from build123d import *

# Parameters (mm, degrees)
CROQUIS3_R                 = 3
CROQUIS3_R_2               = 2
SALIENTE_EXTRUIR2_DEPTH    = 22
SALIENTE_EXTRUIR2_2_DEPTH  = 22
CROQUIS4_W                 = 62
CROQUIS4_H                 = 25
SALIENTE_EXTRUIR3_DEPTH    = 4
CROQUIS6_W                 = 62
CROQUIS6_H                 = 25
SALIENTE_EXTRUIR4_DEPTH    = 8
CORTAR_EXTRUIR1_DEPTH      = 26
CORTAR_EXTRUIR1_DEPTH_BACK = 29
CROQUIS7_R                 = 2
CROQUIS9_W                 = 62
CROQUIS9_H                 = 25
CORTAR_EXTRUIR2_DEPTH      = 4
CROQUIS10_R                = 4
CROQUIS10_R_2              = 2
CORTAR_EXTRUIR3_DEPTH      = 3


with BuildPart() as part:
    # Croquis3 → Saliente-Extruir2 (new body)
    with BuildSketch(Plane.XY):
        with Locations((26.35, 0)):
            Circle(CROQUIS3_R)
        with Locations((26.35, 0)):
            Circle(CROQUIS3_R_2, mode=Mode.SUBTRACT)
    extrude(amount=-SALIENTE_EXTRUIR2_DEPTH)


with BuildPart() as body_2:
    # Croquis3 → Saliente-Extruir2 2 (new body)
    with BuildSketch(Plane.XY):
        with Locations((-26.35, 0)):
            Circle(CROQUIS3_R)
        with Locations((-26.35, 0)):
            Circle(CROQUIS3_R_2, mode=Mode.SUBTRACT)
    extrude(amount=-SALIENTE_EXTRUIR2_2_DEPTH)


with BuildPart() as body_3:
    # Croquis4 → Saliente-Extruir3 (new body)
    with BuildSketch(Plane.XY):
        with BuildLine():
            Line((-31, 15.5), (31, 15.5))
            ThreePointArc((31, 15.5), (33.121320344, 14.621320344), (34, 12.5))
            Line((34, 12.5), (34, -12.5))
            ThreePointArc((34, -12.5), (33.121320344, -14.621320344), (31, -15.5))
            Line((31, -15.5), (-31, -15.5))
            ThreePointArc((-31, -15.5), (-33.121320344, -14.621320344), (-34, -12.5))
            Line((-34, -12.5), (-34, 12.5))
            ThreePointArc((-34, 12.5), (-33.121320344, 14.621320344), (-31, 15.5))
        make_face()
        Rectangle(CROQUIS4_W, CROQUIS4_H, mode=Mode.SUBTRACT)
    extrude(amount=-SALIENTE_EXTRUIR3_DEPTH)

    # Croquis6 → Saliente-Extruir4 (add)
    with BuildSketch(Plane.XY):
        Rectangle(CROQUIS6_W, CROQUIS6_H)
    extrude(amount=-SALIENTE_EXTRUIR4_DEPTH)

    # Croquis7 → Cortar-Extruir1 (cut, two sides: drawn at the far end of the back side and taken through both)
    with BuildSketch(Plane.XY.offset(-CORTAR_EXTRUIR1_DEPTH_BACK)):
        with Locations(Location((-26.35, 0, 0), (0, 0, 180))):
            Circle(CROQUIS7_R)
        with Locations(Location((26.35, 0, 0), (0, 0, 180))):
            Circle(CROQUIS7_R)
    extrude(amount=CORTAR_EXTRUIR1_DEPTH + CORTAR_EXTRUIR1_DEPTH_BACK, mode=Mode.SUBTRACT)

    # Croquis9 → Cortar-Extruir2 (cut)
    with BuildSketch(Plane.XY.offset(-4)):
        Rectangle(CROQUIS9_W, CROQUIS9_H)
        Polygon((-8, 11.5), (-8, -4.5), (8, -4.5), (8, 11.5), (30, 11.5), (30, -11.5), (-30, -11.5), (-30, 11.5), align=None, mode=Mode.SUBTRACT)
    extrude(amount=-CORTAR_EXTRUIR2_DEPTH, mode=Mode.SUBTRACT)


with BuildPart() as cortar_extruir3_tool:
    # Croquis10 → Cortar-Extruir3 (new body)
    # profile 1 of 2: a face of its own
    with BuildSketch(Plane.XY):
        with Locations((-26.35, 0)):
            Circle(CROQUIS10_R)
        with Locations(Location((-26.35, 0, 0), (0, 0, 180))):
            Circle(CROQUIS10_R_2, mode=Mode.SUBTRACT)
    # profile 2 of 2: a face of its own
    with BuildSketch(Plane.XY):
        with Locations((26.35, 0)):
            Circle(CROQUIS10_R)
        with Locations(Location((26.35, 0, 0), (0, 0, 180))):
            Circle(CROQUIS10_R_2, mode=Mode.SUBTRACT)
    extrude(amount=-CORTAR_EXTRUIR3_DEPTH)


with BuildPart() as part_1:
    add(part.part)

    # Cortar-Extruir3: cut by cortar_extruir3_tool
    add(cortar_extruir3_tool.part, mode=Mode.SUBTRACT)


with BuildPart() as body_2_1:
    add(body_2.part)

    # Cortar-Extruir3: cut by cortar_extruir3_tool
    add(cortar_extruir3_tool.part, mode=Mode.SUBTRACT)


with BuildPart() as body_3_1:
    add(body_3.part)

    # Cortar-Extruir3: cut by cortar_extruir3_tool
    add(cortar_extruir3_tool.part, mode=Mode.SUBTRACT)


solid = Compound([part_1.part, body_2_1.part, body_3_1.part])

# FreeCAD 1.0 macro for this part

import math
import FreeCAD as App
import Part
import Sketcher

V = App.Vector

doc = App.newDocument("Part")
body = doc.addObject("PartDesign::Body", "Body")

sketch1 = body.newObject("Sketcher::SketchObject", "Sketch")
sketch1.AttachmentSupport = (doc.getObject("XY_Plane"), [""])
sketch1.MapMode = "FlatFace"
sketch1.addGeometry([
    Part.Circle(V(26.4, 0, 0), V(0, 0, 1), 3),
    Part.Circle(V(26.4, 0, 0), V(0, 0, 1), 2),
], False)
sketch1.addConstraint([
    Sketcher.Constraint("Coincident", 1, 3, 0, 3),
    Sketcher.Constraint("PointOnObject", 0, 3, -1),
    Sketcher.Constraint("Diameter", 0, 6.0),
    Sketcher.Constraint("Diameter", 1, 4.0),
    Sketcher.Constraint("DistanceX", -1, 1, 0, 3, 26.35),
])
pad1 = body.newObject("PartDesign::Pad", "Pad")
pad1.Profile = sketch1
pad1.Length = 22
pad1.Reversed = True
body2 = doc.addObject("PartDesign::Body", "Body001")

sketch2 = body2.newObject("Sketcher::SketchObject", "Sketch001")
sketch2.AttachmentSupport = (doc.getObject("XY_Plane001"), [""])
sketch2.MapMode = "FlatFace"
sketch2.addGeometry([
    Part.Circle(V(-26.4, 0, 0), V(0, 0, 1), 3),
    Part.Circle(V(-26.4, 0, 0), V(0, 0, 1), 2),
], False)
sketch2.addConstraint([
    Sketcher.Constraint("Coincident", 1, 3, 0, 3),
    Sketcher.Constraint("PointOnObject", 0, 3, -1),
    Sketcher.Constraint("Diameter", 0, 6.0),
    Sketcher.Constraint("Diameter", 1, 4.0),
    Sketcher.Constraint("DistanceX", 0, 3, -1, 1, 26.35),
])
pad2 = body2.newObject("PartDesign::Pad", "Pad001")
pad2.Profile = sketch2
pad2.Length = 22
pad2.Reversed = True
body3 = doc.addObject("PartDesign::Body", "Body002")

sketch3 = body3.newObject("Sketcher::SketchObject", "Sketch002")
sketch3.AttachmentSupport = (doc.getObject("XY_Plane002"), [""])
sketch3.MapMode = "FlatFace"
sketch3.addGeometry([
    Part.LineSegment(V(31, 15.5, 0), V(-31, 15.5, 0)),
    Part.ArcOfCircle(Part.Circle(V(-31, 12.5, 0), V(0, 0, 1), 3), math.radians(90), math.radians(180)),
    Part.LineSegment(V(-34, 12.5, 0), V(-34, -12.5, 0)),
    Part.ArcOfCircle(Part.Circle(V(-31, -12.5, 0), V(0, 0, 1), 3), math.radians(180), math.radians(270)),
    Part.LineSegment(V(-31, -15.5, 0), V(31, -15.5, 0)),
    Part.ArcOfCircle(Part.Circle(V(31, -12.5, 0), V(0, 0, 1), 3), math.radians(-90), math.radians(0)),
    Part.LineSegment(V(34, -12.5, 0), V(34, 12.5, 0)),
    Part.ArcOfCircle(Part.Circle(V(31, 12.5, 0), V(0, 0, 1), 3), math.radians(0), math.radians(90)),
    Part.LineSegment(V(-31, -12.5, 0), V(-31, 12.5, 0)),
    Part.LineSegment(V(-31, 12.5, 0), V(31, 12.5, 0)),
    Part.LineSegment(V(31, 12.5, 0), V(31, -12.5, 0)),
    Part.LineSegment(V(31, -12.5, 0), V(-31, -12.5, 0)),
], False)
sketch3.addConstraint([
    Sketcher.Constraint("Tangent", 0, 2, 1, 1),
    Sketcher.Constraint("Tangent", 1, 2, 2, 1),
    Sketcher.Constraint("Tangent", 2, 2, 3, 1),
    Sketcher.Constraint("Tangent", 3, 2, 4, 1),
    Sketcher.Constraint("Tangent", 4, 2, 5, 1),
    Sketcher.Constraint("Tangent", 5, 2, 6, 1),
    Sketcher.Constraint("Tangent", 6, 2, 7, 1),
    Sketcher.Constraint("Tangent", 7, 2, 0, 1),
    Sketcher.Constraint("Coincident", 8, 2, 9, 1),
    Sketcher.Constraint("Coincident", 9, 2, 10, 1),
    Sketcher.Constraint("Coincident", 10, 2, 11, 1),
    Sketcher.Constraint("Coincident", 11, 2, 8, 1),
    Sketcher.Constraint("Horizontal", 0),
    Sketcher.Constraint("Vertical", 2),
    Sketcher.Constraint("Horizontal", 4),
    Sketcher.Constraint("Vertical", 6),
    Sketcher.Constraint("Vertical", 8),
    Sketcher.Constraint("Horizontal", 9),
    Sketcher.Constraint("Vertical", 10),
    Sketcher.Constraint("Horizontal", 11),
    Sketcher.Constraint("Coincident", 8, 2, 1, 3),
    Sketcher.Constraint("Coincident", 9, 2, 7, 3),
    Sketcher.Constraint("Coincident", 10, 2, 5, 3),
    Sketcher.Constraint("Equal", 1, 3),
    Sketcher.Constraint("Symmetric", 1, 3, 5, 3, -1, 1),
    Sketcher.Constraint("Radius", 1, 3.0),
    Sketcher.Constraint("DistanceX", 0, 2, 0, 1, 62.0),
    Sketcher.Constraint("DistanceY", 2, 2, 2, 1, 25.0),
])
pad3 = body3.newObject("PartDesign::Pad", "Pad002")
pad3.Profile = sketch3
pad3.Length = 4
pad3.Reversed = True

sketch4 = body3.newObject("Sketcher::SketchObject", "Sketch003")
sketch4.AttachmentSupport = (doc.getObject("XY_Plane002"), [""])
sketch4.MapMode = "FlatFace"
sketch4.addGeometry([
    Part.LineSegment(V(-31, 12, 0), V(-31, -12, 0)),
    Part.LineSegment(V(-31, -12, 0), V(31, -12, 0)),
    Part.LineSegment(V(31, -12, 0), V(31, 12, 0)),
    Part.LineSegment(V(31, 12, 0), V(-31, 12, 0)),
], False)
sketch4.addConstraint([
    Sketcher.Constraint("Coincident", 0, 2, 1, 1),
    Sketcher.Constraint("Coincident", 1, 2, 2, 1),
    Sketcher.Constraint("Coincident", 2, 2, 3, 1),
    Sketcher.Constraint("Coincident", 3, 2, 0, 1),
    Sketcher.Constraint("Vertical", 0),
    Sketcher.Constraint("Horizontal", 1),
    Sketcher.Constraint("Vertical", 2),
    Sketcher.Constraint("Horizontal", 3),
    Sketcher.Constraint("Symmetric", 0, 2, 2, 2, -1, 1),
    Sketcher.Constraint("DistanceX", 1, 1, 1, 2, 62.0),
    Sketcher.Constraint("DistanceY", 0, 2, 0, 1, 25.0),
])
pad4 = body3.newObject("PartDesign::Pad", "Pad003")
pad4.Profile = sketch4
pad4.Length = 8
pad4.Reversed = True

sketch5 = body3.newObject("Sketcher::SketchObject", "Sketch004")
sketch5.AttachmentSupport = (doc.getObject("XY_Plane002"), [""])
sketch5.MapMode = "FlatFace"
sketch5.addGeometry([
    Part.Circle(V(-26.4, 0, 0), V(0, 0, 1), 2),
    Part.Circle(V(26.4, 0, 0), V(0, 0, 1), 2),
], False)
sketch5.addConstraint([
    Sketcher.Constraint("Equal", 0, 1),
    Sketcher.Constraint("Symmetric", 0, 3, 1, 3, -1, 1),
    Sketcher.Constraint("PointOnObject", 0, 3, -1),
    Sketcher.Constraint("Diameter", 0, 4.0),
    Sketcher.Constraint("DistanceX", 0, 3, 1, 3, 52.7),
])
pocket1 = body3.newObject("PartDesign::Pocket", "Pocket")
pocket1.Profile = sketch5
pocket1.Type = "ThroughAll"
pocket1.Midplane = True

sketch6 = body3.newObject("Sketcher::SketchObject", "Sketch005")
sketch6.AttachmentSupport = (doc.getObject("XY_Plane002"), [""])
sketch6.MapMode = "FlatFace"
sketch6.AttachmentOffset = App.Placement(V(0, 0, -4), App.Rotation())
sketch6.addGeometry([
    Part.LineSegment(V(-31, 12, 0), V(-31, -12, 0)),
    Part.LineSegment(V(-31, -12, 0), V(31, -12, 0)),
    Part.LineSegment(V(31, -12, 0), V(31, 12, 0)),
    Part.LineSegment(V(31, 12, 0), V(-31, 12, 0)),
    Part.LineSegment(V(-30, 12, 0), V(-8, 12, 0)),
    Part.LineSegment(V(-8, 12, 0), V(-8, -4, 0)),
    Part.LineSegment(V(-8, -4, 0), V(8, -4, 0)),
    Part.LineSegment(V(8, -4, 0), V(8, 12, 0)),
    Part.LineSegment(V(8, 12, 0), V(30, 12, 0)),
    Part.LineSegment(V(30, 12, 0), V(30, -12, 0)),
    Part.LineSegment(V(30, -12, 0), V(-30, -12, 0)),
    Part.LineSegment(V(-30, -12, 0), V(-30, 12, 0)),
], False)
sketch6.addConstraint([
    Sketcher.Constraint("Coincident", 0, 2, 1, 1),
    Sketcher.Constraint("Coincident", 1, 2, 2, 1),
    Sketcher.Constraint("Coincident", 2, 2, 3, 1),
    Sketcher.Constraint("Coincident", 3, 2, 0, 1),
    Sketcher.Constraint("Coincident", 4, 2, 5, 1),
    Sketcher.Constraint("Coincident", 5, 2, 6, 1),
    Sketcher.Constraint("Coincident", 6, 2, 7, 1),
    Sketcher.Constraint("Coincident", 7, 2, 8, 1),
    Sketcher.Constraint("Coincident", 8, 2, 9, 1),
    Sketcher.Constraint("Coincident", 9, 2, 10, 1),
    Sketcher.Constraint("Coincident", 10, 2, 11, 1),
    Sketcher.Constraint("Coincident", 11, 2, 4, 1),
    Sketcher.Constraint("Vertical", 0),
    Sketcher.Constraint("Horizontal", 1),
    Sketcher.Constraint("Vertical", 2),
    Sketcher.Constraint("Horizontal", 3),
    Sketcher.Constraint("Horizontal", 4),
    Sketcher.Constraint("Vertical", 5),
    Sketcher.Constraint("Horizontal", 6),
    Sketcher.Constraint("Vertical", 7),
    Sketcher.Constraint("Horizontal", 8),
    Sketcher.Constraint("Vertical", 9),
    Sketcher.Constraint("Horizontal", 10),
    Sketcher.Constraint("Vertical", 11),
    Sketcher.Constraint("Symmetric", 0, 2, 2, 2, -1, 1),
    Sketcher.Constraint("Symmetric", 8, 2, 10, 2, -1, 1),
    Sketcher.Constraint("Symmetric", 4, 2, 7, 2, -2),
    Sketcher.Constraint("Equal", 6, 5),
    Sketcher.Constraint("DistanceX", 1, 1, 1, 2, 62.0),
    Sketcher.Constraint("DistanceX", 4, 1, 4, 2, 22.0),
    Sketcher.Constraint("DistanceX", 6, 1, 6, 2, 16.0),
    Sketcher.Constraint("DistanceY", 0, 2, 0, 1, 25.0),
    Sketcher.Constraint("DistanceY", 9, 2, 9, 1, 23.0),
])
pocket2 = body3.newObject("PartDesign::Pocket", "Pocket001")
pocket2.Profile = sketch6
pocket2.Length = 4
body4 = doc.addObject("PartDesign::Body", "Body003")
body4.AllowCompound = True

sketch7 = body4.newObject("Sketcher::SketchObject", "Sketch006")
sketch7.AttachmentSupport = (doc.getObject("XY_Plane003"), [""])
sketch7.MapMode = "FlatFace"
sketch7.addGeometry([
    Part.Circle(V(-26.4, 0, 0), V(0, 0, 1), 4),
    Part.Circle(V(-26.4, 0, 0), V(0, 0, 1), 2),
    Part.Circle(V(26.4, 0, 0), V(0, 0, 1), 4),
    Part.Circle(V(26.4, 0, 0), V(0, 0, 1), 2),
], False)
sketch7.addConstraint([
    Sketcher.Constraint("Coincident", 1, 3, 0, 3),
    Sketcher.Constraint("Coincident", 3, 3, 2, 3),
    Sketcher.Constraint("Equal", 0, 2),
    Sketcher.Constraint("Equal", 1, 3),
    Sketcher.Constraint("Symmetric", 0, 3, 2, 3, -1, 1),
    Sketcher.Constraint("PointOnObject", 0, 3, -1),
    Sketcher.Constraint("Diameter", 0, 8.0),
    Sketcher.Constraint("Diameter", 1, 4.0),
    Sketcher.Constraint("DistanceX", 0, 3, 2, 3, 52.7),
])
pad5 = body4.newObject("PartDesign::Pad", "Pad004")
pad5.Profile = sketch7
pad5.Length = 3
pad5.Reversed = True
doc.recompute()

body5 = doc.addObject("PartDesign::Body", "Body004")
body5.BaseFeature = body4
boolean = body.newObject("PartDesign::Boolean", "Boolean")
boolean.Type = "Cut"
boolean.addObjects([body5])
doc.recompute()

body6 = doc.addObject("PartDesign::Body", "Body005")
body6.BaseFeature = body4
boolean2 = body2.newObject("PartDesign::Boolean", "Boolean001")
boolean2.Type = "Cut"
boolean2.addObjects([body6])
doc.recompute()

boolean3 = body3.newObject("PartDesign::Boolean", "Boolean002")
boolean3.Type = "Cut"
boolean3.addObjects([body4])

doc.recompute()
